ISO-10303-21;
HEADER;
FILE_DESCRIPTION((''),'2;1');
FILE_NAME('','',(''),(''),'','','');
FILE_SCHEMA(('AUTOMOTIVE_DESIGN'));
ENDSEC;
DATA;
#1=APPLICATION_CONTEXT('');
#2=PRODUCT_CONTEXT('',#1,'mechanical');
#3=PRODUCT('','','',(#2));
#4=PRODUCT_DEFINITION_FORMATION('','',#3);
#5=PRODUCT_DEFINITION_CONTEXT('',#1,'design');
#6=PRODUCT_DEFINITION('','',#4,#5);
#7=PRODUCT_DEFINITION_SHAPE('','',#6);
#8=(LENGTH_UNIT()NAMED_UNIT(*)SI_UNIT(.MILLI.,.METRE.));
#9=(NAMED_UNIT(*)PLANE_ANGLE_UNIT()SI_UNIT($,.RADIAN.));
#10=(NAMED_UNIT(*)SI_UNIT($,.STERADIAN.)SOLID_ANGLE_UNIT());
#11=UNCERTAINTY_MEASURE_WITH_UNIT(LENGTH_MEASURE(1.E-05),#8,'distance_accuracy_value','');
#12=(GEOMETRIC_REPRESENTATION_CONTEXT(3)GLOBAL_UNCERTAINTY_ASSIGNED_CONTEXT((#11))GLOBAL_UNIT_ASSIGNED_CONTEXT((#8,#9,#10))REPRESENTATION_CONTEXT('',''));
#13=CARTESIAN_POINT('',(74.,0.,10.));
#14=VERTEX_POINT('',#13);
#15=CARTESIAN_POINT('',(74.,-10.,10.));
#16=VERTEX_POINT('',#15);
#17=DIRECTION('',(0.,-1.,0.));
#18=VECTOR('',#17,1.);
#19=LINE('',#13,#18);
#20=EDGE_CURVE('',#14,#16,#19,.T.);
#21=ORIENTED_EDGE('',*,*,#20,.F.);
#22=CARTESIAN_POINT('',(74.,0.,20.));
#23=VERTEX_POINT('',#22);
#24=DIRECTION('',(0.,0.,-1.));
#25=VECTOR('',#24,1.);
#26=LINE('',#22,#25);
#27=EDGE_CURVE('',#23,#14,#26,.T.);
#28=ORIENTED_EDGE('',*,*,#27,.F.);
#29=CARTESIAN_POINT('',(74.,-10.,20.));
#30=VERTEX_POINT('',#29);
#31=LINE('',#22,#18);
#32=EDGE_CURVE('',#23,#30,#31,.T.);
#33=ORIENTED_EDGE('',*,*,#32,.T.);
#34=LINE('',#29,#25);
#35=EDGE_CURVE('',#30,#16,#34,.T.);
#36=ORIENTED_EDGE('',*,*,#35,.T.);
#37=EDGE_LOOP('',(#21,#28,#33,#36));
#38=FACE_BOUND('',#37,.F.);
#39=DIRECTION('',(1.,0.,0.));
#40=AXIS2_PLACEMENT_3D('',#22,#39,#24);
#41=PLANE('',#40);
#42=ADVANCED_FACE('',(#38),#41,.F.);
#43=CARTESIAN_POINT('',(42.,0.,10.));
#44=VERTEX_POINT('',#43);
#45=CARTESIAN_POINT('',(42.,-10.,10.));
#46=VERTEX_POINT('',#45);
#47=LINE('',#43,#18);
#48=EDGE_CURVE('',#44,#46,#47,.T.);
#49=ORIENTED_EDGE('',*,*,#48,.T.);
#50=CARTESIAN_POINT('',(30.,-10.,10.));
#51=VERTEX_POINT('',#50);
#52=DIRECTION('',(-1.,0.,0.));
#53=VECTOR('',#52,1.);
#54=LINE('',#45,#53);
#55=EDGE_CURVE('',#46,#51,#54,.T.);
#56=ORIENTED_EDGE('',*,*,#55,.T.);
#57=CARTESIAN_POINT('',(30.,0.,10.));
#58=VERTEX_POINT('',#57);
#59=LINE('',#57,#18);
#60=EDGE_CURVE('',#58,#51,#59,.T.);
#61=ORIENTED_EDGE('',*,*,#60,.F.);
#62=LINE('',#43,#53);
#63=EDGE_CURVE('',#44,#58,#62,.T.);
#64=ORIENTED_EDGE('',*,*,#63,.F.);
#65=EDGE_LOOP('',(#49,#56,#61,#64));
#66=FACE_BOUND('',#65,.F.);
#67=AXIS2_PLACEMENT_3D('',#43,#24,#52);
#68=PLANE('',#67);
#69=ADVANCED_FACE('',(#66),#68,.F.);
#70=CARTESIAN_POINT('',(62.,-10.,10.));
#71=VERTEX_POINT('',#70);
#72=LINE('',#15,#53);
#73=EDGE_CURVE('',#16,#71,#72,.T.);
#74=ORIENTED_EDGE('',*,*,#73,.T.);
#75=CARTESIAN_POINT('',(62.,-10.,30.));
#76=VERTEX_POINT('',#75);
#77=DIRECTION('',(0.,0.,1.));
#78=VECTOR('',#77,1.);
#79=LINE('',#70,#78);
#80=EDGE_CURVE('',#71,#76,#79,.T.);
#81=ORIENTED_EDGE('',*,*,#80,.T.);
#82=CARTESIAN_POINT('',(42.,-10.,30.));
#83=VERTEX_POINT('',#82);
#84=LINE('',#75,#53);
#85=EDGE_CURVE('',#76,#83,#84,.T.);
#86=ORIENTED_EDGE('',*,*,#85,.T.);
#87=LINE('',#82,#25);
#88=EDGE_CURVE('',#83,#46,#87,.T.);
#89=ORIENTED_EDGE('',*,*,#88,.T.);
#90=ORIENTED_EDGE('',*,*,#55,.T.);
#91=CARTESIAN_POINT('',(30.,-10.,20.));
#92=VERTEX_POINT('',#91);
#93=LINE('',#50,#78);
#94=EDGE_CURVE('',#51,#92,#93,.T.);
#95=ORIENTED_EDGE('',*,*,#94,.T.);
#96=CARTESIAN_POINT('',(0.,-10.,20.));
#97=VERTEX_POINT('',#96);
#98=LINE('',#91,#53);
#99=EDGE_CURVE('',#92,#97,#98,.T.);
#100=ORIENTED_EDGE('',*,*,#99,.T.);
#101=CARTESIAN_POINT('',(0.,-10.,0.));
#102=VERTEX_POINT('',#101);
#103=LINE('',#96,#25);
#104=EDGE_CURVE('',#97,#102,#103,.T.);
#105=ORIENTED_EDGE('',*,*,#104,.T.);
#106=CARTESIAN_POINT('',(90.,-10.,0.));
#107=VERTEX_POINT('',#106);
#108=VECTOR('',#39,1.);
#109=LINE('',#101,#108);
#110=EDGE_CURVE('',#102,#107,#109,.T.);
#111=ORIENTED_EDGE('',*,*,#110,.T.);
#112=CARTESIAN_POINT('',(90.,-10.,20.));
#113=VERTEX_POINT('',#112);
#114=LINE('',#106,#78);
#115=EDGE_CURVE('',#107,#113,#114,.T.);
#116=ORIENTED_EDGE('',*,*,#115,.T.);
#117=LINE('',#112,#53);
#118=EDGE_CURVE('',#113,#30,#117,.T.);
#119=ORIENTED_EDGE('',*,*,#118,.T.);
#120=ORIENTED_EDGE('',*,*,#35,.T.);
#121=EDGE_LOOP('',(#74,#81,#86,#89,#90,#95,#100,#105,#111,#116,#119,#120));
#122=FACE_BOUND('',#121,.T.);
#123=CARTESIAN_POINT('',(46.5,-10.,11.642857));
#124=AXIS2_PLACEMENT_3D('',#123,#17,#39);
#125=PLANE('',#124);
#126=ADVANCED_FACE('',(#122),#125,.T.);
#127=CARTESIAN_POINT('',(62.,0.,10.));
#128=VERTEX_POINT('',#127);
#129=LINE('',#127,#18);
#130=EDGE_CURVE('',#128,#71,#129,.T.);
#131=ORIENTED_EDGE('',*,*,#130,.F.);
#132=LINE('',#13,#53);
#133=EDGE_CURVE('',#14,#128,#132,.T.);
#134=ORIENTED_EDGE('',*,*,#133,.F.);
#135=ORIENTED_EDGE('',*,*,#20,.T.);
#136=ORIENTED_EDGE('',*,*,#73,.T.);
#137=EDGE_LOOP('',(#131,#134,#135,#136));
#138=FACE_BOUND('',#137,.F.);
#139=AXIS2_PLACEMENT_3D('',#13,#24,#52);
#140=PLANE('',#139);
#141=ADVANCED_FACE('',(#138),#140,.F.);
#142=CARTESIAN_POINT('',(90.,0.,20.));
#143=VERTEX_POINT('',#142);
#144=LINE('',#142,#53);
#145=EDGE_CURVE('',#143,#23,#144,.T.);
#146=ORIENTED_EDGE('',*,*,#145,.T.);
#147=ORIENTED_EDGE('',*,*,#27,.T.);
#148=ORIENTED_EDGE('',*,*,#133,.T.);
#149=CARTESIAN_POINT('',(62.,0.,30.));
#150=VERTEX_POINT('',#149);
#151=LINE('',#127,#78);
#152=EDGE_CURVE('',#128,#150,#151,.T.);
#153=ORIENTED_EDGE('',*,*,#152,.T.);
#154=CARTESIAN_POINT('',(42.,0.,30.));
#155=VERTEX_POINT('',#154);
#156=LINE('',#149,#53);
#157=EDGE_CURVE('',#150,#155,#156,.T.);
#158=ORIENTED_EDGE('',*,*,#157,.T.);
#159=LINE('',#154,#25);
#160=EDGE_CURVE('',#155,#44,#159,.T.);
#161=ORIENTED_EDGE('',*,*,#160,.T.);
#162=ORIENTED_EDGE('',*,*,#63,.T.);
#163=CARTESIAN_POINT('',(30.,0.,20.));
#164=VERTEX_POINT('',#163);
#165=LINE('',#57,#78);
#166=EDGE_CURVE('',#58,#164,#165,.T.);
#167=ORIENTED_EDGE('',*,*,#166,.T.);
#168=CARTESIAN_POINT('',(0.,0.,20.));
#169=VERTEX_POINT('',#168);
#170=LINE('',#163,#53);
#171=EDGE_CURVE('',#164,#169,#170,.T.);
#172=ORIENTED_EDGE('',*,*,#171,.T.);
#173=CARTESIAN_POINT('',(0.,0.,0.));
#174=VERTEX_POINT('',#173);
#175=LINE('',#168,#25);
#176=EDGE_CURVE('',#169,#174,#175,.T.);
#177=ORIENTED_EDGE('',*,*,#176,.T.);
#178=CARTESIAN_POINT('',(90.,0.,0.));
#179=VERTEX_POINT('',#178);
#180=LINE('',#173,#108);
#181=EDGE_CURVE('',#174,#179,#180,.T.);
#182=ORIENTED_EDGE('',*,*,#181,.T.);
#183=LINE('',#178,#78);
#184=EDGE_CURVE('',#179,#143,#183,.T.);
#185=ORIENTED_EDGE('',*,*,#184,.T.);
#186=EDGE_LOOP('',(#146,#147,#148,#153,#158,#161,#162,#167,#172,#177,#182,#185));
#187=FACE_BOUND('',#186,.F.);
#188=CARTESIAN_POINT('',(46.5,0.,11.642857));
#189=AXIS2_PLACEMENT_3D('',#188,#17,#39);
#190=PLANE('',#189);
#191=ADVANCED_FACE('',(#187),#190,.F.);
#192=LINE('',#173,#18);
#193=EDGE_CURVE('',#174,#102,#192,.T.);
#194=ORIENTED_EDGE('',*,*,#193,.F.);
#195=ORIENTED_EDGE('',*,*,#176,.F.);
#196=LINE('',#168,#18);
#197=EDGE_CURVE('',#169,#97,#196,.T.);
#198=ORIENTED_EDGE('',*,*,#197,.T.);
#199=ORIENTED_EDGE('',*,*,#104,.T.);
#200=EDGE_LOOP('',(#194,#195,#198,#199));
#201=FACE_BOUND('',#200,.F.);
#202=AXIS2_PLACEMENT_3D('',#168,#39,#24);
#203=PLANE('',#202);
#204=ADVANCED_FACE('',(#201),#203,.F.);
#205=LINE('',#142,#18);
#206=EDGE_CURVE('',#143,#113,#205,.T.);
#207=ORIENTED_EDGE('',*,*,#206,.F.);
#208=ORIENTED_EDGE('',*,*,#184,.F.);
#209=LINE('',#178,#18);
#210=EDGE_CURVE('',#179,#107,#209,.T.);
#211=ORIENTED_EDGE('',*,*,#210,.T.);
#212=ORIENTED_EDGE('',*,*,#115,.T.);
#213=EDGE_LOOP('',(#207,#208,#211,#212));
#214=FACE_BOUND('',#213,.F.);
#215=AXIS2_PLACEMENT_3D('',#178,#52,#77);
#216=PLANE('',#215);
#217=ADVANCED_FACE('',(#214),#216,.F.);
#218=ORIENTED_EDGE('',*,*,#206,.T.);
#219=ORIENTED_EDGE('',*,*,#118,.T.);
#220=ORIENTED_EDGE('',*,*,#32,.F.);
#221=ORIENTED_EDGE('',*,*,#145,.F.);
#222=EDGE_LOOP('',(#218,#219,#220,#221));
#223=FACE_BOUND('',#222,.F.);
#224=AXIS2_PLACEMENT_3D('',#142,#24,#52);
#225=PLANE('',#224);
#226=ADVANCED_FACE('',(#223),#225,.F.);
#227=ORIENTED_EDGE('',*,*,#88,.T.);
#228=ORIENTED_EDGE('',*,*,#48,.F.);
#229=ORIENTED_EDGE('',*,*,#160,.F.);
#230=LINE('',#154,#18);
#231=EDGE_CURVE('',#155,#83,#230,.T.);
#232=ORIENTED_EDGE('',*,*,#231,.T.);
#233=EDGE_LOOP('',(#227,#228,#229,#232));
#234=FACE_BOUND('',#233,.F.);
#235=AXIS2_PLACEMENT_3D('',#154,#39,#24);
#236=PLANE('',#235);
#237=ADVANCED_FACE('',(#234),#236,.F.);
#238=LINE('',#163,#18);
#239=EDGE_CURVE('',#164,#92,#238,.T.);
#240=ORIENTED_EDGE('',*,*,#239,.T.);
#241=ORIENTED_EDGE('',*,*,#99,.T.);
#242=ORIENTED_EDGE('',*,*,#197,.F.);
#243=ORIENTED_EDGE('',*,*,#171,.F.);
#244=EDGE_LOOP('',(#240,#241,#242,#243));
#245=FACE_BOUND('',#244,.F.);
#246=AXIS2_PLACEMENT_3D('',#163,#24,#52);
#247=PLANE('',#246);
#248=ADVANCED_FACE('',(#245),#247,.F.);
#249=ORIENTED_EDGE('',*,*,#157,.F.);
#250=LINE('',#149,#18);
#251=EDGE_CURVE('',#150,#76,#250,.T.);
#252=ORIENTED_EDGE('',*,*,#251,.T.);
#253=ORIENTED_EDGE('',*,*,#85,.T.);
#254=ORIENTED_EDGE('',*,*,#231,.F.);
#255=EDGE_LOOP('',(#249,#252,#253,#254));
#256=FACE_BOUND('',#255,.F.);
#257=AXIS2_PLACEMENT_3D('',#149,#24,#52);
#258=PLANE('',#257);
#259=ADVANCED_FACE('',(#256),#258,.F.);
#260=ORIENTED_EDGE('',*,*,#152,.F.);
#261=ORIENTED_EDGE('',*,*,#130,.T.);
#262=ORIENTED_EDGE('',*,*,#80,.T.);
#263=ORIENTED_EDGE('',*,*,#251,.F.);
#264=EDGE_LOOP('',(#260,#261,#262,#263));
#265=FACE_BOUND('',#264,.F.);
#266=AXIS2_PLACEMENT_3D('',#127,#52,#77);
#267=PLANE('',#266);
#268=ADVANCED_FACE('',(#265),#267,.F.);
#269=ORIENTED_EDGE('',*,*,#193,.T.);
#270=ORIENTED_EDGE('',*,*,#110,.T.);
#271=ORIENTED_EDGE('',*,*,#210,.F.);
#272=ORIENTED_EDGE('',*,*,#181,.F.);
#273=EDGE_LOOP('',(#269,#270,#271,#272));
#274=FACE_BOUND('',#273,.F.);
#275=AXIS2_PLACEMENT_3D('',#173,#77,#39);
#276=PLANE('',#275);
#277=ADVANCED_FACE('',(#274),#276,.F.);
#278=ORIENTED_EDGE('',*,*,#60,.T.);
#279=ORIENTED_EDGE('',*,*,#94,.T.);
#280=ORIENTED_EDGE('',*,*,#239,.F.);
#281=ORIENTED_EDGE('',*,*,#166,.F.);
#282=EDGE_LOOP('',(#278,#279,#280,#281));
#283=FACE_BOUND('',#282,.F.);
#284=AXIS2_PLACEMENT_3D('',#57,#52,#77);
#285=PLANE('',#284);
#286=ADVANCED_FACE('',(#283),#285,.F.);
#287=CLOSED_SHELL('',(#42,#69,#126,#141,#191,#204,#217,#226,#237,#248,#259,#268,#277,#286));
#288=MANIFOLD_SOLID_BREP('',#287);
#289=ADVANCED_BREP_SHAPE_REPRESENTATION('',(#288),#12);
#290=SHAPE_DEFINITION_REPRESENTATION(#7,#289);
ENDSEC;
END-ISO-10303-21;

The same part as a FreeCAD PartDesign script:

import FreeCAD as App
import Part
import Sketcher

V = App.Vector


def add_polygon(sketch, points):
    """Adds a closed chain of lines whose ends are joined by coincident constraints."""
    first, n = sketch.GeometryCount, len(points)
    for a, b in zip(points, points[1:] + points[:1]):
        sketch.addGeometry(Part.LineSegment(App.Vector(*a, 0), App.Vector(*b, 0)), False)
    for i in range(n):
        sketch.addConstraint(Sketcher.Constraint("Coincident", first + i, 2, first + (i + 1) % n, 1))

doc = App.newDocument("Part")
body = doc.addObject("PartDesign::Body", "Body")

# Sketch on XZ plane
sketch1 = body.newObject("Sketcher::SketchObject", "Sketch")
sketch1.AttachmentSupport = (doc.getObject("XZ_Plane"), [""])
sketch1.MapMode = "FlatFace"
add_polygon(sketch1, [(0, 20), (0, 0), (90, 0), (90, 20), (74, 20), (74, 10), (62, 10), (62, 30), (42, 30), (42, 10), (30, 10), (30, 20)])  # lines 0-11
sketch1.addConstraint(Sketcher.Constraint("Vertical", 0))
sketch1.addConstraint(Sketcher.Constraint("Horizontal", 1))
sketch1.addConstraint(Sketcher.Constraint("Vertical", 2))
sketch1.addConstraint(Sketcher.Constraint("Horizontal", 3))
sketch1.addConstraint(Sketcher.Constraint("Vertical", 4))
sketch1.addConstraint(Sketcher.Constraint("Horizontal", 5))
sketch1.addConstraint(Sketcher.Constraint("Vertical", 6))
sketch1.addConstraint(Sketcher.Constraint("Horizontal", 7))
sketch1.addConstraint(Sketcher.Constraint("Vertical", 8))
sketch1.addConstraint(Sketcher.Constraint("Horizontal", 9))
sketch1.addConstraint(Sketcher.Constraint("Vertical", 10))
sketch1.addConstraint(Sketcher.Constraint("Horizontal", 11))
sketch1.addConstraint(Sketcher.Constraint("Coincident", 0, 2, -1, 1))
sketch1.addConstraint(Sketcher.Constraint("Horizontal", 5, 2, 8, 2))
sketch1.addConstraint(Sketcher.Constraint("Horizontal", 3, 2, 10, 2))
sketch1.addConstraint(Sketcher.Constraint("Equal", 5, 9))
sketch1.addConstraint(Sketcher.Constraint("Equal", 7, 0))
sketch1.addConstraint(Sketcher.Constraint("Equal", 2, 6))
sketch1.addConstraint(Sketcher.Constraint("DistanceX", 1, 1, 1, 2, 90.0))
sketch1.addConstraint(Sketcher.Constraint("DistanceX", 3, 2, 3, 1, 16.0))
sketch1.addConstraint(Sketcher.Constraint("DistanceX", 5, 2, 5, 1, 12.0))
sketch1.addConstraint(Sketcher.Constraint("DistanceX", 7, 2, 7, 1, 20.0))
sketch1.addConstraint(Sketcher.Constraint("DistanceY", 4, 2, 4, 1, 10.0))
pad1 = body.newObject("PartDesign::Pad", "Pad")
pad1.Profile = sketch1
pad1.Length = 10

doc.recompute()
